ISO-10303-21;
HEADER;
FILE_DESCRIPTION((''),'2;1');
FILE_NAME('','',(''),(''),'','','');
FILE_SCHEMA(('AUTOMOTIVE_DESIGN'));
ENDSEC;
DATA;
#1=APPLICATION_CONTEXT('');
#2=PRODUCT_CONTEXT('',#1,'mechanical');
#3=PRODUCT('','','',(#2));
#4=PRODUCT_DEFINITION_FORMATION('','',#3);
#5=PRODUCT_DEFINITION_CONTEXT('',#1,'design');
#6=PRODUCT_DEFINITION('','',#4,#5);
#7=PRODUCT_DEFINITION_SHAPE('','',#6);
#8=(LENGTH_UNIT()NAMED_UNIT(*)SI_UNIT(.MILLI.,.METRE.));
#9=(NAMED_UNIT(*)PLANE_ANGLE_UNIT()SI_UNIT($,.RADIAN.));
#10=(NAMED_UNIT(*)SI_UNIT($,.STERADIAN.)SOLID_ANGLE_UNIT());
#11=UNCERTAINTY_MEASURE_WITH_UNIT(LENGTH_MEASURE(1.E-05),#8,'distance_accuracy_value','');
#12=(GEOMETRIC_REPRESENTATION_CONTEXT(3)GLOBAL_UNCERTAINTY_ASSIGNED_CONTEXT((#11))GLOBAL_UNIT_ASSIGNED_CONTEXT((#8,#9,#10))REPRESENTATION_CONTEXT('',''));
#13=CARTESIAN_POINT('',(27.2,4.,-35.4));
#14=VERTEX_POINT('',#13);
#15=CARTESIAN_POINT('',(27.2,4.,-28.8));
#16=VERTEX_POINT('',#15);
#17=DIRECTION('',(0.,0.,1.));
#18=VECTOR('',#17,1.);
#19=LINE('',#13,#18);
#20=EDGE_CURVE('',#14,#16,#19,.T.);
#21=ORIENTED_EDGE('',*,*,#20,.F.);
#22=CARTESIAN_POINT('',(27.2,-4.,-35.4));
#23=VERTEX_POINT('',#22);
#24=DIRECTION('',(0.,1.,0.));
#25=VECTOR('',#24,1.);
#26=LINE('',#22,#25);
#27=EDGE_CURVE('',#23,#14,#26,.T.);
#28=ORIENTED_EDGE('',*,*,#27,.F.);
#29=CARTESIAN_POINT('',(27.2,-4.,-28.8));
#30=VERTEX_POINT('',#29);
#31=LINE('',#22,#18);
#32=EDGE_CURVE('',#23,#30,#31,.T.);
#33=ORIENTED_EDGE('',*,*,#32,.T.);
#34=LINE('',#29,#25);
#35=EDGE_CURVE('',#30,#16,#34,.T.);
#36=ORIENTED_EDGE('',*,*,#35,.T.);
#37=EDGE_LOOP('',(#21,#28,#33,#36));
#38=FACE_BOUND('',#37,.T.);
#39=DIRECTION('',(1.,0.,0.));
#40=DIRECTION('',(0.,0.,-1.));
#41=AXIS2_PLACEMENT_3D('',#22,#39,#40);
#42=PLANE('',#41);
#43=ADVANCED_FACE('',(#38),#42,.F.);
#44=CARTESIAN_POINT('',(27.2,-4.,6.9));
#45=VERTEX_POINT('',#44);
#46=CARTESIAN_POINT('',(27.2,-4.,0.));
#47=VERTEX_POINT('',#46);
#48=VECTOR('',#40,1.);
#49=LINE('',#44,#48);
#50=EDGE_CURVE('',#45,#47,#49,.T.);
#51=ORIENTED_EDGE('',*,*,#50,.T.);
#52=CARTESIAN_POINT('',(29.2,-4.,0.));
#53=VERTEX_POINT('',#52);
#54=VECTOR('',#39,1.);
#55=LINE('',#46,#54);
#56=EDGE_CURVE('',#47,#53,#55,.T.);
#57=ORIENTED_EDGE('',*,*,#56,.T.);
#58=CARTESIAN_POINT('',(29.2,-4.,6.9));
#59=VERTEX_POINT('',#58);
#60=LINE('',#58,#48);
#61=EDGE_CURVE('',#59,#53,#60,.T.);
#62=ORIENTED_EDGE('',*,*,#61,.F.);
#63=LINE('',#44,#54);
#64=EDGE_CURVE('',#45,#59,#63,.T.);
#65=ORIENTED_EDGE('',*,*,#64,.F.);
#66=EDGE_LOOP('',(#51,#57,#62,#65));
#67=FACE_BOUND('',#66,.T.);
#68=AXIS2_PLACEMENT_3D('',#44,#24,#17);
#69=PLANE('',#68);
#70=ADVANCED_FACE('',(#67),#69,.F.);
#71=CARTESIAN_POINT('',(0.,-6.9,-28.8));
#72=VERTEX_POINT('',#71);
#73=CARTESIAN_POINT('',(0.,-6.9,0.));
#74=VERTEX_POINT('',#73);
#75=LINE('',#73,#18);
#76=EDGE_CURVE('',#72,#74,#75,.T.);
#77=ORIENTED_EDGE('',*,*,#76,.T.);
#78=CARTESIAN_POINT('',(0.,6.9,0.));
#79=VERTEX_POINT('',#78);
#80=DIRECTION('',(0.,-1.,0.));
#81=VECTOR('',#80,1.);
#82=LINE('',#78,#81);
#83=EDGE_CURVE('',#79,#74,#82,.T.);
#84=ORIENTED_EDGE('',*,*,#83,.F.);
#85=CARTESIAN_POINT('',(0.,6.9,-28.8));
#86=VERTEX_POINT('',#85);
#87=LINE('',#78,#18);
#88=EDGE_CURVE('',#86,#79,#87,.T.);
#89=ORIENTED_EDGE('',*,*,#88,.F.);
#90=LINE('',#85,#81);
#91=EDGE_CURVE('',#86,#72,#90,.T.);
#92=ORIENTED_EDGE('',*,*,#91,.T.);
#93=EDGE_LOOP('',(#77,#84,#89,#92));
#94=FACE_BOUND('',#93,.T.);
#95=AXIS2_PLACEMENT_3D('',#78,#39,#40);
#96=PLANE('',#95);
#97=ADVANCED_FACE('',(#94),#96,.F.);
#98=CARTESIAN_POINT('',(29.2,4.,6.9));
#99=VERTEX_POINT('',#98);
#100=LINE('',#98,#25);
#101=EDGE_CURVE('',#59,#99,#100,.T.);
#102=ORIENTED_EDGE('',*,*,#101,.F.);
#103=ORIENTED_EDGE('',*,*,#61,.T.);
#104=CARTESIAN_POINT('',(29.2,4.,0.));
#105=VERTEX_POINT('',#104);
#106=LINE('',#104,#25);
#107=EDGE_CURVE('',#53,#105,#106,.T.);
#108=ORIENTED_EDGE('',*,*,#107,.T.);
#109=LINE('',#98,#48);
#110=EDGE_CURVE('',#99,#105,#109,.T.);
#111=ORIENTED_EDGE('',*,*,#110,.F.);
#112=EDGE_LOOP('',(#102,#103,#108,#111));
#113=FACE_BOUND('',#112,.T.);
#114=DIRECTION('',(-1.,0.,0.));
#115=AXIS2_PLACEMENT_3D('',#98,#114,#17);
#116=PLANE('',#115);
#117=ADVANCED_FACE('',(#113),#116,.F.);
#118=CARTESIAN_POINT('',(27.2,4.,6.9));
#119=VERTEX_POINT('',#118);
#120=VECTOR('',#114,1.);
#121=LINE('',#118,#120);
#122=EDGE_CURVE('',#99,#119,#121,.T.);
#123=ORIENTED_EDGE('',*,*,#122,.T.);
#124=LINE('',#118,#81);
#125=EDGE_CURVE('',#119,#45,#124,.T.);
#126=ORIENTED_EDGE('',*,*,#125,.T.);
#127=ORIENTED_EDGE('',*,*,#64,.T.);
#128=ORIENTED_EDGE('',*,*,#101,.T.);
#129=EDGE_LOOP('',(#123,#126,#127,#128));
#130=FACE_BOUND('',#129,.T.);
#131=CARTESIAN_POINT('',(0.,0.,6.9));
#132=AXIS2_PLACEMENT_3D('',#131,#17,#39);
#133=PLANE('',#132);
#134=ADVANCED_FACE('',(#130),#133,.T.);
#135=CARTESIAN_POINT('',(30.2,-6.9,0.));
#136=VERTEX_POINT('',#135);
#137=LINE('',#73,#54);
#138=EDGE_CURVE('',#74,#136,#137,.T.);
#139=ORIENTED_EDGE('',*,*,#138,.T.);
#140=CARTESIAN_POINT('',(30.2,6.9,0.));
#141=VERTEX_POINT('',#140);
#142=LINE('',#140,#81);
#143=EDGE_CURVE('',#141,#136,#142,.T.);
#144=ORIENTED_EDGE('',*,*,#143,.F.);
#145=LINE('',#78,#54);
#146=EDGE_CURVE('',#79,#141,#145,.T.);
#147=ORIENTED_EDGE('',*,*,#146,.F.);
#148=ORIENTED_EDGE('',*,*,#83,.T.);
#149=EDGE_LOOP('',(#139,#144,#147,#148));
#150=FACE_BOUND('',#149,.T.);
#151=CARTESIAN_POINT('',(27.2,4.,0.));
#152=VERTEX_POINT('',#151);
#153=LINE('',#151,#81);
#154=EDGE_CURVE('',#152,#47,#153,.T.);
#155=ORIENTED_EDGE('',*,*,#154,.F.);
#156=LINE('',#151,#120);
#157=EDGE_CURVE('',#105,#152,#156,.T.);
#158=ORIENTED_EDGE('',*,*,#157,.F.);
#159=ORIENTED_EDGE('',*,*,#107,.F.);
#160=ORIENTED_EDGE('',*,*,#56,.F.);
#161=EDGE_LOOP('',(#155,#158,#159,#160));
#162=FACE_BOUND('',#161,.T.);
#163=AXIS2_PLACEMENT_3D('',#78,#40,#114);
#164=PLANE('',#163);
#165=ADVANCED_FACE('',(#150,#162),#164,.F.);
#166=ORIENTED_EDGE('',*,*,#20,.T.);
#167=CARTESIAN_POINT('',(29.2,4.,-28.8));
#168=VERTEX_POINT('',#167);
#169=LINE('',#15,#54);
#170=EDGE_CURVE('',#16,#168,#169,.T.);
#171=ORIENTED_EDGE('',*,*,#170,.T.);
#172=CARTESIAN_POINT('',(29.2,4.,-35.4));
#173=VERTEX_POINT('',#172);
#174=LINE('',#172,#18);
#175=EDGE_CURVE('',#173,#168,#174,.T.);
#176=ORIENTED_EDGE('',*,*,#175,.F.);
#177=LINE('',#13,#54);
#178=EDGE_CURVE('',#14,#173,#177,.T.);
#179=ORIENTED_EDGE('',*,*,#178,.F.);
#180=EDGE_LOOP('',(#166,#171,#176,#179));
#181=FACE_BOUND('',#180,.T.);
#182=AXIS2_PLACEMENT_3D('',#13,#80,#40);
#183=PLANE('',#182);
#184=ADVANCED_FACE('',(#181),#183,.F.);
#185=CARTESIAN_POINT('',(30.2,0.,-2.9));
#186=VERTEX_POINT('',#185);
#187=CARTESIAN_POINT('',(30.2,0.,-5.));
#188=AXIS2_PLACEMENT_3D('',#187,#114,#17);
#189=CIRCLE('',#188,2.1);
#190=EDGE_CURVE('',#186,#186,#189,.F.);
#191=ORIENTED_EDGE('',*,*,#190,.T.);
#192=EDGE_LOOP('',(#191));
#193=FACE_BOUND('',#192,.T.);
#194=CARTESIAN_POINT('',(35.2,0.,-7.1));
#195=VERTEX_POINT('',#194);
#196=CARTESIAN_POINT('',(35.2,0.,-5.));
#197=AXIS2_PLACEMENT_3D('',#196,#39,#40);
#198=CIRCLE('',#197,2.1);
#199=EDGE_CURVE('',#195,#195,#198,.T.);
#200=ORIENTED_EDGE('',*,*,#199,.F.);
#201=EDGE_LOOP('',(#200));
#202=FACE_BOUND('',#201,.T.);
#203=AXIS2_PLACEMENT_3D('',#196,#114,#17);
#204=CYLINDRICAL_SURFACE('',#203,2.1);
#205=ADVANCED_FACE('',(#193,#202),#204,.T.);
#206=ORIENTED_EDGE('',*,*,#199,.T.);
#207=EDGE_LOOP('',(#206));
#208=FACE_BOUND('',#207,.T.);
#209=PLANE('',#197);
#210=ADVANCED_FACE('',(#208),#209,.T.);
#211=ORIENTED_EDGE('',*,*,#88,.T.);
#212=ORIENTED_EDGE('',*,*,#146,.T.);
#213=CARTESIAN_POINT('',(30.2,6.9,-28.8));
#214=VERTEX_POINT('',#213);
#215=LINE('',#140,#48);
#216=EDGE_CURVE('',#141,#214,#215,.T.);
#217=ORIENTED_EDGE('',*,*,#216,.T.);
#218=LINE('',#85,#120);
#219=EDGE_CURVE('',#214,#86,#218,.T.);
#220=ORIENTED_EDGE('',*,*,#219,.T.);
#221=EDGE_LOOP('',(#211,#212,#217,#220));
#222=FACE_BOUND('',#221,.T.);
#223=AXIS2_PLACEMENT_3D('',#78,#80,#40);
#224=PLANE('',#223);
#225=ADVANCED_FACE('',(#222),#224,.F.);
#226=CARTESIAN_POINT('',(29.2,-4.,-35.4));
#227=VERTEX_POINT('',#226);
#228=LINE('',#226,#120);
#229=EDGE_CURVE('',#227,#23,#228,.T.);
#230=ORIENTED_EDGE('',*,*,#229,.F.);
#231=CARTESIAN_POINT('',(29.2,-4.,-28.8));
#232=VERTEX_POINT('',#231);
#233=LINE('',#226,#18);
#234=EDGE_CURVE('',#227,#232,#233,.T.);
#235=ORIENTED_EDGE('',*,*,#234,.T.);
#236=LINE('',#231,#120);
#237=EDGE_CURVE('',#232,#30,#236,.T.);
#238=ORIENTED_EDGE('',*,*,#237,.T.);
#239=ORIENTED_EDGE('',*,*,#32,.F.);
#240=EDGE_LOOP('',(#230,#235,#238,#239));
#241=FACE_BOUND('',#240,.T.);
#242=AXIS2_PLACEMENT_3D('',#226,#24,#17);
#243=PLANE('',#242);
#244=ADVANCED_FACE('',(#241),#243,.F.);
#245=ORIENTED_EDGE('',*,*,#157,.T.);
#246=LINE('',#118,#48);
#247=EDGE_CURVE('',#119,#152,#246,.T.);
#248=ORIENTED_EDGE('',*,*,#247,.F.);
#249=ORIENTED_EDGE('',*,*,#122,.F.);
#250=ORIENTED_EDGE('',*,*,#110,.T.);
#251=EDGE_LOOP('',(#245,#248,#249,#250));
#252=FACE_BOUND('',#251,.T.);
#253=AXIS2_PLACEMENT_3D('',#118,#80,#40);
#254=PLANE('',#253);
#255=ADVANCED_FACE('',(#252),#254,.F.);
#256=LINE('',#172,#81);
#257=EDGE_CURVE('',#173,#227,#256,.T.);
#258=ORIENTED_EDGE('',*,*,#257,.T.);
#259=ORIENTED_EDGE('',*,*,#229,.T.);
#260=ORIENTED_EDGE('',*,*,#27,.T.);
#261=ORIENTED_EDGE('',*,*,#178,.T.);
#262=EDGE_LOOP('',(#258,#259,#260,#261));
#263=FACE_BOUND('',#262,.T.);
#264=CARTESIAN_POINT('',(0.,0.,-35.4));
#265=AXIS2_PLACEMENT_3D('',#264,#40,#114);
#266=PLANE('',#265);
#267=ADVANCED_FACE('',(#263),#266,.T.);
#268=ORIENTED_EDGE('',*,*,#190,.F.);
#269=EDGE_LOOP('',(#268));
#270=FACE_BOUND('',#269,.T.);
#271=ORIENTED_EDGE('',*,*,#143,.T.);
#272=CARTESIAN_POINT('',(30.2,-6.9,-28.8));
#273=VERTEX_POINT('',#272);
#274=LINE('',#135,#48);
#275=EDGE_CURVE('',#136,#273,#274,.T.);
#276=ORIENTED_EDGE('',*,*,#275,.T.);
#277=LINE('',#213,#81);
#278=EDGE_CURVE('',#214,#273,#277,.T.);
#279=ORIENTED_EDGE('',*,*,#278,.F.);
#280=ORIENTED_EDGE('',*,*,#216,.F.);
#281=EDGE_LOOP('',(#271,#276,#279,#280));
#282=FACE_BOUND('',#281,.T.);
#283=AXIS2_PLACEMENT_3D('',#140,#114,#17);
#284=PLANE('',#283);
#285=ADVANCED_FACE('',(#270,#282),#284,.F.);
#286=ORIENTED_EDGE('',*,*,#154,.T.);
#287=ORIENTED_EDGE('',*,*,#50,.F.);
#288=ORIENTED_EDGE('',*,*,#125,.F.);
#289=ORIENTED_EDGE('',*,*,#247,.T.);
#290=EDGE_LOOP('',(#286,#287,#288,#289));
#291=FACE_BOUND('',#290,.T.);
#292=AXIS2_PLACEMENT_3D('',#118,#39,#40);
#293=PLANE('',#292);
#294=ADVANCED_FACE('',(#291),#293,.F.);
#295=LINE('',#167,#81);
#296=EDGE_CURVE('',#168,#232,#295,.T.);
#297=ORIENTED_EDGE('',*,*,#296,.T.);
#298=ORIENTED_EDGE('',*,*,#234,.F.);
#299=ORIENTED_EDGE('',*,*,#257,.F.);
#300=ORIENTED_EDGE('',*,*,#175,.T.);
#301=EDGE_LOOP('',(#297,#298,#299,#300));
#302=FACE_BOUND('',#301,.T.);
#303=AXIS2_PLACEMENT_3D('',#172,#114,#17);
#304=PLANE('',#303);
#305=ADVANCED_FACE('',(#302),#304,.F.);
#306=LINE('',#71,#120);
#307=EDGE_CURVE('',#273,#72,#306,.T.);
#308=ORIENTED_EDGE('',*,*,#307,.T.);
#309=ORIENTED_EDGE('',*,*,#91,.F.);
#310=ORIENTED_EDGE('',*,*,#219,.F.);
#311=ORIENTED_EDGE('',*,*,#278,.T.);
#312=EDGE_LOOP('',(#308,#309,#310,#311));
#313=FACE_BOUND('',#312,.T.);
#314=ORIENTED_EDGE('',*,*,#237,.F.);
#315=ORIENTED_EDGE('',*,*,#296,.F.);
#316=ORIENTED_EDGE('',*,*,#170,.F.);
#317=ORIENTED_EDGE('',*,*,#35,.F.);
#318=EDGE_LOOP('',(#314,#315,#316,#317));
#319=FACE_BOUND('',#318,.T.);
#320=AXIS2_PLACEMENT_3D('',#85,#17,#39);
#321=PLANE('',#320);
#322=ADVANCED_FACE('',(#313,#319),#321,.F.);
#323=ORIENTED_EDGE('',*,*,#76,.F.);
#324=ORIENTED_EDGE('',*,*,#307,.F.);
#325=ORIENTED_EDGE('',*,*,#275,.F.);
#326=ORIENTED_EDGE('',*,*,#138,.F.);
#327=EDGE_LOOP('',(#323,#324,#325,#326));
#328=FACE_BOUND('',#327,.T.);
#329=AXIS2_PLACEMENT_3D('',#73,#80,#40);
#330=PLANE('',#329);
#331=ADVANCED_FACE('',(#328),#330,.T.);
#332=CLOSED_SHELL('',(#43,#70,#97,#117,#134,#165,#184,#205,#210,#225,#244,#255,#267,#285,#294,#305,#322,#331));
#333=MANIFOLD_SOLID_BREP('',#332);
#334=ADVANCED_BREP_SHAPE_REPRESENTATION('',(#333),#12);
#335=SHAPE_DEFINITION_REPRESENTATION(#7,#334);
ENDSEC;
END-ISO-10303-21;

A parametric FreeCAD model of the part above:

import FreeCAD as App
import Part
import Sketcher


def add_polygon(sketch, points):
    """Adds a closed chain of lines whose ends are joined by coincident constraints."""
    first, n = sketch.GeometryCount, len(points)
    for a, b in zip(points, points[1:] + points[:1]):
        sketch.addGeometry(Part.LineSegment(App.Vector(*a, 0), App.Vector(*b, 0)), False)
    for i in range(n):
        sketch.addConstraint(Sketcher.Constraint("Coincident", first + i, 2, first + (i + 1) % n, 1))

doc = App.newDocument("Part")
body = doc.addObject("PartDesign::Body", "Body")

sketch1 = body.newObject("Sketcher::SketchObject", "Sketch")
sketch1.AttachmentSupport = (doc.getObject("XZ_Plane"), [""])
sketch1.MapMode = "FlatFace"
add_polygon(sketch1, [(0, -28.8), (0, 0), (30.2, 0), (30.2, -28.8)])
sketch1.addConstraint(Sketcher.Constraint("Vertical", 0))
sketch1.addConstraint(Sketcher.Constraint("Horizontal", 1))
sketch1.addConstraint(Sketcher.Constraint("Vertical", 2))
sketch1.addConstraint(Sketcher.Constraint("Horizontal", 3))
sketch1.addConstraint(Sketcher.Constraint("Coincident", 0, 2, -1, 1))
sketch1.addConstraint(Sketcher.Constraint("DistanceX", 1, 1, 1, 2, 30.2))
sketch1.addConstraint(Sketcher.Constraint("DistanceY", 0, 1, 0, 2, 28.8))
pad1 = body.newObject("PartDesign::Pad", "Pad")
pad1.Profile = sketch1
pad1.Length = 13.8
pad1.Midplane = True

sketch2 = body.newObject("Sketcher::SketchObject", "Sketch001")
sketch2.AttachmentSupport = (doc.getObject("YZ_Plane"), [""])
sketch2.MapMode = "FlatFace"
sketch2.AttachmentOffset = App.Placement(App.Vector(0, 0, 30.2), App.Rotation())
sketch2.addGeometry(Part.Circle(App.Vector(0, -5, 0), App.Vector(0, 0, 1), 2.1), False)
sketch2.addConstraint(Sketcher.Constraint("PointOnObject", 0, 3, -2))
sketch2.addConstraint(Sketcher.Constraint("Diameter", 0, 4.2))
sketch2.addConstraint(Sketcher.Constraint("DistanceY", 0, 3, -1, 1, 5.0))
pad2 = body.newObject("PartDesign::Pad", "Pad001")
pad2.Profile = sketch2
pad2.Length = 5

sketch3 = body.newObject("Sketcher::SketchObject", "Sketch002")
sketch3.AttachmentSupport = (doc.getObject("XY_Plane"), [""])
sketch3.MapMode = "FlatFace"
add_polygon(sketch3, [(27.2, 4), (27.2, -4), (29.2, -4), (29.2, 4)])
sketch3.addConstraint(Sketcher.Constraint("Vertical", 0))
sketch3.addConstraint(Sketcher.Constraint("Horizontal", 1))
sketch3.addConstraint(Sketcher.Constraint("Vertical", 2))
sketch3.addConstraint(Sketcher.Constraint("Horizontal", 3))
sketch3.addConstraint(Sketcher.Constraint("DistanceX", 1, 1, 1, 2, 2.0))
sketch3.addConstraint(Sketcher.Constraint("DistanceY", 0, 2, 0, 1, 8.0))
sketch3.addConstraint(Sketcher.Constraint("DistanceY", 0, 2, -1, 1, 4.0))
sketch3.addConstraint(Sketcher.Constraint("DistanceX", -1, 1, 0, 2, 27.2))
pad3 = body.newObject("PartDesign::Pad", "Pad002")
pad3.Profile = sketch3
pad3.Length = 6.9

sketch4 = body.newObject("Sketcher::SketchObject", "Sketch003")
sketch4.AttachmentSupport = (doc.getObject("XY_Plane"), [""])
sketch4.MapMode = "FlatFace"
sketch4.AttachmentOffset = App.Placement(App.Vector(0, 0, -28.8), App.Rotation())
add_polygon(sketch4, [(29.2, 4), (29.2, -4), (27.2, -4), (27.2, 4)])
sketch4.addConstraint(Sketcher.Constraint("Vertical", 0))
sketch4.addConstraint(Sketcher.Constraint("Horizontal", 1))
sketch4.addConstraint(Sketcher.Constraint("Vertical", 2))
sketch4.addConstraint(Sketcher.Constraint("Horizontal", 3))
sketch4.addConstraint(Sketcher.Constraint("DistanceX", 1, 2, 1, 1, 2.0))
sketch4.addConstraint(Sketcher.Constraint("DistanceY", 0, 2, 0, 1, 8.0))
sketch4.addConstraint(Sketcher.Constraint("DistanceY", 0, 2, -1, 1, 4.0))
sketch4.addConstraint(Sketcher.Constraint("DistanceX", -1, 1, 0, 2, 29.2))
pad4 = body.newObject("PartDesign::Pad", "Pad003")
pad4.Profile = sketch4
pad4.Length = 6.6
pad4.Reversed = True

doc.recompute()
